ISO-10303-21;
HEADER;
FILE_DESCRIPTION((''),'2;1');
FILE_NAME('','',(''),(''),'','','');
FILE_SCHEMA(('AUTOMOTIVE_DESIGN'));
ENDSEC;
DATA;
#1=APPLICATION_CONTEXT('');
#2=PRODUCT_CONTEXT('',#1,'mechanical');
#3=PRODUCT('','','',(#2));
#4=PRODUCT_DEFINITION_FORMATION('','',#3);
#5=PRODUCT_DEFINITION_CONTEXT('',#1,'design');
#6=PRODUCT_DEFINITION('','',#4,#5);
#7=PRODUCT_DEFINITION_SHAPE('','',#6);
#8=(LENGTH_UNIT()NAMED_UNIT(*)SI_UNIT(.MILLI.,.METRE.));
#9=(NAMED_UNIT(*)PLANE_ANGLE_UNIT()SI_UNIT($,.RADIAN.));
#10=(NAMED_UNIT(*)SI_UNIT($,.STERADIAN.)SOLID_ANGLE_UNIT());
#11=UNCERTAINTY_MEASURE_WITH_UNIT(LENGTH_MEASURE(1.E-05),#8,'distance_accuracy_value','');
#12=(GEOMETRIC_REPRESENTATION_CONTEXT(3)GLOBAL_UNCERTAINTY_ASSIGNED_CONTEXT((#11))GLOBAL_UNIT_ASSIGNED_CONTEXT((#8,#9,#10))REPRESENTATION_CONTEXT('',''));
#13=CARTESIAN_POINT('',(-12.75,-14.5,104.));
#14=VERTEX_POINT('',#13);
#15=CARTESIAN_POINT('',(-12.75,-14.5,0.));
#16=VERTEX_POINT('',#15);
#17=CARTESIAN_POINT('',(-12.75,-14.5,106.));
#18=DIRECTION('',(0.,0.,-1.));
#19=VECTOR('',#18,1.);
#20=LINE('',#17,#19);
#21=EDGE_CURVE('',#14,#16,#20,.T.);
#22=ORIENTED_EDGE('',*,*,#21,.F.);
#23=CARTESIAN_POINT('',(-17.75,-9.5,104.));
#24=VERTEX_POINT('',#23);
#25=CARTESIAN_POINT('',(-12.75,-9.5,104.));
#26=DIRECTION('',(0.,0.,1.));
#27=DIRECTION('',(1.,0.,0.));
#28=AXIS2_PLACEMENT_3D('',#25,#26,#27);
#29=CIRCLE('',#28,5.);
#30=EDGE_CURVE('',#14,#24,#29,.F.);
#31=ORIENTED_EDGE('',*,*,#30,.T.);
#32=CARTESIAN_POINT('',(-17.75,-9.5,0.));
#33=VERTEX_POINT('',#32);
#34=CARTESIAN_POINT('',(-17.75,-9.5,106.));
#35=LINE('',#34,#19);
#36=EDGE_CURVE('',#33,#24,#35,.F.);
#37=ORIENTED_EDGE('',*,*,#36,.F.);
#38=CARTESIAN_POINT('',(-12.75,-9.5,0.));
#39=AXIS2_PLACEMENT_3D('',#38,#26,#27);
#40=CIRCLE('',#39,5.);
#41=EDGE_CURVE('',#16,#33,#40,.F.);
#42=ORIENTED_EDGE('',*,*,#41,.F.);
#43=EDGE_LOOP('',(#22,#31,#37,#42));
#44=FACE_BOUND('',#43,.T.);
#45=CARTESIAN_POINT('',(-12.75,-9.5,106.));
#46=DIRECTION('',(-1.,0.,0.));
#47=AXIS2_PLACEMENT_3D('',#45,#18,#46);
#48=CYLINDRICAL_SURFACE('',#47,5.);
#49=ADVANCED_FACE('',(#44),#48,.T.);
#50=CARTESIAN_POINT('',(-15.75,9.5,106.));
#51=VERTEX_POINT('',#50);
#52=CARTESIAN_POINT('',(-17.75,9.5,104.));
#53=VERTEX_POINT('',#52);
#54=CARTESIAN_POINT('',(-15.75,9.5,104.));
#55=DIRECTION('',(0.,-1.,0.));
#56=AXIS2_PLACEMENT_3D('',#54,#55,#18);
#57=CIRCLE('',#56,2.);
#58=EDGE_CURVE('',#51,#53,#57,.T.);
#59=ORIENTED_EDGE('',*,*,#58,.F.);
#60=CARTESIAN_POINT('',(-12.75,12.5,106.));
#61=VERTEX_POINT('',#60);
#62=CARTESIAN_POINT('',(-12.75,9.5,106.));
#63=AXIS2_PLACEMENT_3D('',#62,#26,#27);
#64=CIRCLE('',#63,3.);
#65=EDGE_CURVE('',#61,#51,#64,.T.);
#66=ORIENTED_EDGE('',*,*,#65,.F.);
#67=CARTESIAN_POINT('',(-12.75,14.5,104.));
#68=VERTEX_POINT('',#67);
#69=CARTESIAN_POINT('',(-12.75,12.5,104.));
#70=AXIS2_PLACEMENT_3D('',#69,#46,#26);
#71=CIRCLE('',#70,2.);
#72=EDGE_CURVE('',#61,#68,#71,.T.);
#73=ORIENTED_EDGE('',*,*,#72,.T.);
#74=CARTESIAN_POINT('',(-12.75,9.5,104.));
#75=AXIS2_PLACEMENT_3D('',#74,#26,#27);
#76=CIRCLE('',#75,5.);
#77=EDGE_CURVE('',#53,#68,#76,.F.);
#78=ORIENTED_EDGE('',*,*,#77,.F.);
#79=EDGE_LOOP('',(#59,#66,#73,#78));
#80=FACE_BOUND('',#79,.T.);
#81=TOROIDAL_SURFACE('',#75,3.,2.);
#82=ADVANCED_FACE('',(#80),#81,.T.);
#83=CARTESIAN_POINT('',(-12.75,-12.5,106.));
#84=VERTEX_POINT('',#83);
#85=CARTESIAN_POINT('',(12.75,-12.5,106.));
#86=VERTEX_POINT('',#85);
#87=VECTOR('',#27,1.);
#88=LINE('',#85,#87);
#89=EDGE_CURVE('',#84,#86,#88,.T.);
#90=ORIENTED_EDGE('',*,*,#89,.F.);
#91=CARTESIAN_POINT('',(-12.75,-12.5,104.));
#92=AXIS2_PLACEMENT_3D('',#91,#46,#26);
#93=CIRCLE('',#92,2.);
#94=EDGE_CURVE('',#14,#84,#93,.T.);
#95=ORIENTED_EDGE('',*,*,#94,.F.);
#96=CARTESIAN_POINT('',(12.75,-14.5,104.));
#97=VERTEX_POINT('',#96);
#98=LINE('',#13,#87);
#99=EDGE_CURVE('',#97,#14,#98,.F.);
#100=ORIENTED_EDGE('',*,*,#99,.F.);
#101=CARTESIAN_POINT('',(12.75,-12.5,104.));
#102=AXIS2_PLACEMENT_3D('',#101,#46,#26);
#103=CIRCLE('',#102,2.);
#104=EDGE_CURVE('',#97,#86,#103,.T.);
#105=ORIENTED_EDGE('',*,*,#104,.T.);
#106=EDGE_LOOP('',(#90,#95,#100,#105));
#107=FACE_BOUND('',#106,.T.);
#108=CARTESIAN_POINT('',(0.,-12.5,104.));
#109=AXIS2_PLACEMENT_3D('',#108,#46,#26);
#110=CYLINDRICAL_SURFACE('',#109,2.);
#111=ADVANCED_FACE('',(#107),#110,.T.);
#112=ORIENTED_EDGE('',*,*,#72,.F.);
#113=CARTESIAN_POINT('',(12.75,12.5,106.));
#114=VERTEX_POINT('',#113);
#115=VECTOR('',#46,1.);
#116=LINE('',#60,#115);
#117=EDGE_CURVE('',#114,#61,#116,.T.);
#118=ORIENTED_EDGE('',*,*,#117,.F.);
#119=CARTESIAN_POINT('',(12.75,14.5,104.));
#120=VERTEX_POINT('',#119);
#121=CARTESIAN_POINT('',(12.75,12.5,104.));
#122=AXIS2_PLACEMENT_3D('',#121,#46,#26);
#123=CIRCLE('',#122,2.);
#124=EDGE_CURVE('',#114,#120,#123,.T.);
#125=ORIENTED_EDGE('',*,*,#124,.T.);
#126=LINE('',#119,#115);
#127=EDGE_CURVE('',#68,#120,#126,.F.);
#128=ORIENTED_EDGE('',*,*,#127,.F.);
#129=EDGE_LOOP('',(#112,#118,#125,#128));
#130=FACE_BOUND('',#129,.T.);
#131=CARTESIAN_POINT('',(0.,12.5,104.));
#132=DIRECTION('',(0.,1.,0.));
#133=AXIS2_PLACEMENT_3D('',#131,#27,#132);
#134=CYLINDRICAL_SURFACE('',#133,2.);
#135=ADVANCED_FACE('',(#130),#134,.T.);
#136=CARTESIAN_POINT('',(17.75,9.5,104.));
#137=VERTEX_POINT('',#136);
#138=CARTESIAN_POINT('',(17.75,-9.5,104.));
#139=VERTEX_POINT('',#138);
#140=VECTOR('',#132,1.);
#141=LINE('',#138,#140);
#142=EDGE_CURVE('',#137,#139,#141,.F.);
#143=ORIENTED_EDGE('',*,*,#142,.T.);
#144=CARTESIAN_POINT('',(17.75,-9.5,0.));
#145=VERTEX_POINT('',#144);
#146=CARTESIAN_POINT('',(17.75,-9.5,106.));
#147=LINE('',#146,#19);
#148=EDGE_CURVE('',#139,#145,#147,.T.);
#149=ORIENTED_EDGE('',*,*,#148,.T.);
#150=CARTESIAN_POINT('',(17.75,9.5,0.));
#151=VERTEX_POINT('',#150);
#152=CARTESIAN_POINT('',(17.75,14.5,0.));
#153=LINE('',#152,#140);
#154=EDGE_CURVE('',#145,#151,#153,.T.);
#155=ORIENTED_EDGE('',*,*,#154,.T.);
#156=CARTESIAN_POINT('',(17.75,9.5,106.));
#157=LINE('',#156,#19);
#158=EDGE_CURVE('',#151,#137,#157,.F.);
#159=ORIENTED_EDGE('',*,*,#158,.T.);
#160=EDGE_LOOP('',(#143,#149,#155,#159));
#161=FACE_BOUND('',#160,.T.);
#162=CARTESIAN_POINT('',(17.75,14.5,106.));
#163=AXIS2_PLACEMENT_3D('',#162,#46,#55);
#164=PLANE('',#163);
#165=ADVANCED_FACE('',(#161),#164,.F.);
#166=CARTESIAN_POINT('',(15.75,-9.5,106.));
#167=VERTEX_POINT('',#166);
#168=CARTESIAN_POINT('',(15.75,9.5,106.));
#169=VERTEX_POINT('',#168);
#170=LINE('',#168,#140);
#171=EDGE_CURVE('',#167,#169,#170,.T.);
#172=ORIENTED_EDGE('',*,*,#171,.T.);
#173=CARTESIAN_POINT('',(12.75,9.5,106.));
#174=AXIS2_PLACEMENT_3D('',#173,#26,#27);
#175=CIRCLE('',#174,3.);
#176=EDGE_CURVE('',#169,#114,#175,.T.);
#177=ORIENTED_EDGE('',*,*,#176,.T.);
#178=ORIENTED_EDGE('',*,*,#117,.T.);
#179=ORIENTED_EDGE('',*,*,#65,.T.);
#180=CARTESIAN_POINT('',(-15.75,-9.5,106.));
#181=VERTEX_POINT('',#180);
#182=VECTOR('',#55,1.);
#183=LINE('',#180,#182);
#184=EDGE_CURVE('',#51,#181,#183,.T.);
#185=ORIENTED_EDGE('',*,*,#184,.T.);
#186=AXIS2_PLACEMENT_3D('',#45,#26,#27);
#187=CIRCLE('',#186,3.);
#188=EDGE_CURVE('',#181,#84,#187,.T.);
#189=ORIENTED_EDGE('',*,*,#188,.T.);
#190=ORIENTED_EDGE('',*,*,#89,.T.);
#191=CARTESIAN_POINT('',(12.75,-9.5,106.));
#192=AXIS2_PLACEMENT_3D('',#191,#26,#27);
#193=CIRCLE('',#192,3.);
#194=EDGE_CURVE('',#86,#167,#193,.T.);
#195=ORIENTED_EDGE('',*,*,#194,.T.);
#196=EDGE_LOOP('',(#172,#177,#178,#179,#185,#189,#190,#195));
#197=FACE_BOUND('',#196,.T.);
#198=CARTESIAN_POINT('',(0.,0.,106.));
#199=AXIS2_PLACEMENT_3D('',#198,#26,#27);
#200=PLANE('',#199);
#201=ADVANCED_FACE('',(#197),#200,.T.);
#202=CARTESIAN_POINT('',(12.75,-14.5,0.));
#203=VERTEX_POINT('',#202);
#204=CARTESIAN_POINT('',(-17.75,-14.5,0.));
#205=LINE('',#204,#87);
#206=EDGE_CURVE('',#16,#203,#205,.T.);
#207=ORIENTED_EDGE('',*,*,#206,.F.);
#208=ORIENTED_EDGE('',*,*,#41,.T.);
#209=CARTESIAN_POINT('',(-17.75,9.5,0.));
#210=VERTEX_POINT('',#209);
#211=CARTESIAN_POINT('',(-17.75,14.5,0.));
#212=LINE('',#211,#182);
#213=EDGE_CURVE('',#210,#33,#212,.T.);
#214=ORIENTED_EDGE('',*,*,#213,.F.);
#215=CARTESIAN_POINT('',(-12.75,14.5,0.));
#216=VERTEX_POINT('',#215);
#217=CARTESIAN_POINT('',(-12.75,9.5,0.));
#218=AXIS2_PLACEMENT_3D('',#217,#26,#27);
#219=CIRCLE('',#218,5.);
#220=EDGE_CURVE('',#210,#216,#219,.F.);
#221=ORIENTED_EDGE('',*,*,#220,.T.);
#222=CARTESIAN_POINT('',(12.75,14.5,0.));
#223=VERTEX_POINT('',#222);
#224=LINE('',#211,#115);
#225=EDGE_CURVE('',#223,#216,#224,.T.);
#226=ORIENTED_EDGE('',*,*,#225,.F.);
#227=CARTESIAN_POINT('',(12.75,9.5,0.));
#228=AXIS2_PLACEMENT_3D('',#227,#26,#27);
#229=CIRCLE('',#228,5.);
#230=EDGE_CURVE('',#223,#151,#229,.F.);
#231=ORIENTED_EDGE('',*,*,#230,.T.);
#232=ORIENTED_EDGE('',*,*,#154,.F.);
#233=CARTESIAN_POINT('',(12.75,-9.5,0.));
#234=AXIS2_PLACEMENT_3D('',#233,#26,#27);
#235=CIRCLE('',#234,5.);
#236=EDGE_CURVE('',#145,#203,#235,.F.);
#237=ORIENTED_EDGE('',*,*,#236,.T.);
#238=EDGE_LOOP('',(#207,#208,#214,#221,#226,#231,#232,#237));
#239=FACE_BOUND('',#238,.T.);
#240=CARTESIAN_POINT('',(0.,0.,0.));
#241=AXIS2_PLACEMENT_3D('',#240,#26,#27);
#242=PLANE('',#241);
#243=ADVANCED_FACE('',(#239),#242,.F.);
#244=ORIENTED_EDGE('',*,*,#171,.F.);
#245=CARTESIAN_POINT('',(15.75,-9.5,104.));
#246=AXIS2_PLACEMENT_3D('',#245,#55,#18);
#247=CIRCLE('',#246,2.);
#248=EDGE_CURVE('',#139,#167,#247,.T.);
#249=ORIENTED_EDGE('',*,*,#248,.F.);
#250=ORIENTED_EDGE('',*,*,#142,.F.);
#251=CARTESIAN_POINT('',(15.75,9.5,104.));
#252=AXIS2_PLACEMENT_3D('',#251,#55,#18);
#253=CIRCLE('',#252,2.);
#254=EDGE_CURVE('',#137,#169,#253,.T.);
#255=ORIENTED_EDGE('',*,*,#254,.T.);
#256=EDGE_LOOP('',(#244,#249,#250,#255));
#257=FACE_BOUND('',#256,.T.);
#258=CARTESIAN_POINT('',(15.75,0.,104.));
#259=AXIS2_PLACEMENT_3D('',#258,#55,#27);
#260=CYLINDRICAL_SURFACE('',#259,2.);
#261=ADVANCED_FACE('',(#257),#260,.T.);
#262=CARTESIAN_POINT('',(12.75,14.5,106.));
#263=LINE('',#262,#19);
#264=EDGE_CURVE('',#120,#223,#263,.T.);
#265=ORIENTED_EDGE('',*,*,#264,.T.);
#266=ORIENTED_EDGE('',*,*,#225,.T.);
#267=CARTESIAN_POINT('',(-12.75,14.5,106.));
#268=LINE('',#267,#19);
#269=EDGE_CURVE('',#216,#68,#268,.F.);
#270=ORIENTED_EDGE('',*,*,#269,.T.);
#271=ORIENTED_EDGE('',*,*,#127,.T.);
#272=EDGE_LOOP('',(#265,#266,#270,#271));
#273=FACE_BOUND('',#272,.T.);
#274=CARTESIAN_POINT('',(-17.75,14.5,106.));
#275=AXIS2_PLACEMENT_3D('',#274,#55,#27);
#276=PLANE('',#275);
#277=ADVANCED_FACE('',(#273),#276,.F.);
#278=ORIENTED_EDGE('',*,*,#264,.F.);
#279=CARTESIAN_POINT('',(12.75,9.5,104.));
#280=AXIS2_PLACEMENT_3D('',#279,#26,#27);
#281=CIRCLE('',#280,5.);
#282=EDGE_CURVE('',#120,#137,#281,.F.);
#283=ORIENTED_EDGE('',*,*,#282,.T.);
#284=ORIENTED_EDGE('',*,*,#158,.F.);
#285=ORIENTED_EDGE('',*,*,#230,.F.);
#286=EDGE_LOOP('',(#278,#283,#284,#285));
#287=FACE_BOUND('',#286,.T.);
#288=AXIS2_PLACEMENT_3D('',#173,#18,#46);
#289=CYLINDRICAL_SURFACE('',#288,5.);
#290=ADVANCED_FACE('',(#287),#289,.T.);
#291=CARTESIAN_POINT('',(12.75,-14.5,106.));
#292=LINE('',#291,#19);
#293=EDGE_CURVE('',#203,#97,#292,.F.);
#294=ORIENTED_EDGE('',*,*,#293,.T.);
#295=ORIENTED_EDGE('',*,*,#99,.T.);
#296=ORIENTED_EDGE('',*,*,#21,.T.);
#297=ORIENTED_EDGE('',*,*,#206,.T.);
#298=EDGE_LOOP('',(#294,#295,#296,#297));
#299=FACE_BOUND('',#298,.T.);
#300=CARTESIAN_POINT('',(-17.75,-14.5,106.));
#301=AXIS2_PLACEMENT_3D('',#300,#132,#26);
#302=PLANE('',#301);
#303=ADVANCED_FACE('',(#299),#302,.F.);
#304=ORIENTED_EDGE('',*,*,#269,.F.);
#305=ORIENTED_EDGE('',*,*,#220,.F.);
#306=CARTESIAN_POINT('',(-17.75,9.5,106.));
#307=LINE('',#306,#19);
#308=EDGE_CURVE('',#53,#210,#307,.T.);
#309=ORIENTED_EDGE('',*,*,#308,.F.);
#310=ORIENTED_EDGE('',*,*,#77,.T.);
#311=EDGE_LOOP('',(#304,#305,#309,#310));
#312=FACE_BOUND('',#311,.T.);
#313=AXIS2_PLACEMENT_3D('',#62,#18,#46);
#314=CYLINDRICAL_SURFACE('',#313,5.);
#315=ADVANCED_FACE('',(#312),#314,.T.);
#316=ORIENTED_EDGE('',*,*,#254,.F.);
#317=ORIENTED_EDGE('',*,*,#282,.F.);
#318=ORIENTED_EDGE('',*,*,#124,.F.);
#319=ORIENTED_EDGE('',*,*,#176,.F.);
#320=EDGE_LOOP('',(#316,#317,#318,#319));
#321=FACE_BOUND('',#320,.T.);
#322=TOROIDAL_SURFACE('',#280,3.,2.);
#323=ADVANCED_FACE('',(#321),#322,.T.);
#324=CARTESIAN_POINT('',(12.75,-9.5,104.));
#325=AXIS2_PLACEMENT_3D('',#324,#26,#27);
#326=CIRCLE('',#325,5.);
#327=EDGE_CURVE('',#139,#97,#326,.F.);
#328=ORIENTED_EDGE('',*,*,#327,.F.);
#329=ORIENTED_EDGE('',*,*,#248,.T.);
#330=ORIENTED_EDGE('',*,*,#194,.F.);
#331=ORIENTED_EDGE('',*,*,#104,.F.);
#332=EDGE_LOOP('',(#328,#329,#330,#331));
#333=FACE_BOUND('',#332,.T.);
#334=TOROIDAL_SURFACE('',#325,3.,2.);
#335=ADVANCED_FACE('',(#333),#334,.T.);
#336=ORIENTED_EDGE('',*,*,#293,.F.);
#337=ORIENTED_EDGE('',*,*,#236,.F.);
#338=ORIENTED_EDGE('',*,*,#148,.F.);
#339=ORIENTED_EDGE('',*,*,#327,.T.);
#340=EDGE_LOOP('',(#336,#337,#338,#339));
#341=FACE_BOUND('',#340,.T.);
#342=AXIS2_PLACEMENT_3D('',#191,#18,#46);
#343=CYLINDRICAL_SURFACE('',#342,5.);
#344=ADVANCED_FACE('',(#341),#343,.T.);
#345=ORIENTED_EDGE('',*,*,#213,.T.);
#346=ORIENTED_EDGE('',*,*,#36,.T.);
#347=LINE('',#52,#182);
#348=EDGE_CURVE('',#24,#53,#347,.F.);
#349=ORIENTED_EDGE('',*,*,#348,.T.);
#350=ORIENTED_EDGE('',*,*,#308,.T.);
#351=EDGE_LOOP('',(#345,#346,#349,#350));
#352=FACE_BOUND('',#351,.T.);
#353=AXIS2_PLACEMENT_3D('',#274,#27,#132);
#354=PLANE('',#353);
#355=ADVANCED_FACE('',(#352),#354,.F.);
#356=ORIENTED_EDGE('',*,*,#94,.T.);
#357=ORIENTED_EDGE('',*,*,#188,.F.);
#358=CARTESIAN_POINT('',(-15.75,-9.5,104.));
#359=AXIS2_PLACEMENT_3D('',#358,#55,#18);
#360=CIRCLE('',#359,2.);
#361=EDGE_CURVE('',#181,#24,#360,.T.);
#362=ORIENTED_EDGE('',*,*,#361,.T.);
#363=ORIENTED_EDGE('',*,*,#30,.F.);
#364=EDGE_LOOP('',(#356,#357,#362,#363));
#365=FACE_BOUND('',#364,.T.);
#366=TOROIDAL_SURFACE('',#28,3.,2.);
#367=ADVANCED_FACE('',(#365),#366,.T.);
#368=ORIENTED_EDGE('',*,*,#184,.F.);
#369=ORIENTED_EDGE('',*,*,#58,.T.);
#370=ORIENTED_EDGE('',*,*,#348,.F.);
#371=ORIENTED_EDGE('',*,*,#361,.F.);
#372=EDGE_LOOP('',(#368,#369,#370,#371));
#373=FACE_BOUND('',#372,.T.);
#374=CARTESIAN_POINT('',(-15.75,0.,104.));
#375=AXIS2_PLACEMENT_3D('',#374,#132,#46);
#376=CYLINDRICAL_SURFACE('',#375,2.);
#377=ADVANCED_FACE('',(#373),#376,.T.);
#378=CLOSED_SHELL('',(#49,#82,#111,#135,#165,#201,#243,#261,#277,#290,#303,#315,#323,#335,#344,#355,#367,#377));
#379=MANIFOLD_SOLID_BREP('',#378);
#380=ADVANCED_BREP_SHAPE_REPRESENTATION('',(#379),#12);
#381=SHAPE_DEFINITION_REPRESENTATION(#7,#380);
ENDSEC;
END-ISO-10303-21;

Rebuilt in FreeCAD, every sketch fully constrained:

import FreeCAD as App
import Part
import Sketcher


def edges_at(feature, points):
    """Names of the edges that pass closest to the given points."""
    edges = feature.Shape.Edges
    near = lambda p: min(range(len(edges)), key=lambda i: edges[i].distToShape(Part.Vertex(*p))[0])
    return sorted({f"Edge{near(p) + 1}" for p in points})


def add_polygon(sketch, points):
    """Adds a closed chain of lines whose ends are joined by coincident constraints."""
    first, n = sketch.GeometryCount, len(points)
    for a, b in zip(points, points[1:] + points[:1]):
        sketch.addGeometry(Part.LineSegment(App.Vector(*a, 0), App.Vector(*b, 0)), False)
    for i in range(n):
        sketch.addConstraint(Sketcher.Constraint("Coincident", first + i, 2, first + (i + 1) % n, 1))

doc = App.newDocument("Part")
body = doc.addObject("PartDesign::Body", "Body")

sketch1 = body.newObject("Sketcher::SketchObject", "Sketch")
sketch1.AttachmentSupport = (doc.getObject("XY_Plane"), [""])
sketch1.MapMode = "FlatFace"
add_polygon(sketch1, [(-18, 14), (-18, -14), (18, -14), (18, 14)])
sketch1.addConstraint([
    Sketcher.Constraint("Vertical", 0),
    Sketcher.Constraint("Horizontal", 1),
    Sketcher.Constraint("Vertical", 2),
    Sketcher.Constraint("Horizontal", 3),
    Sketcher.Constraint("Symmetric", 0, 2, 2, 2, -1, 1),
    Sketcher.Constraint("DistanceY", 0, 2, 0, 1, 29.0),
    Sketcher.Constraint("DistanceX", 1, 1, 1, 2, 35.5),
])
pad1 = body.newObject("PartDesign::Pad", "Pad")
pad1.Profile = sketch1
pad1.Length = 106
doc.recompute()

fillet = body.newObject("PartDesign::Fillet", "Fillet")
fillet.Base = (pad1, edges_at(pad1, [
    (17.75, -14.5, 53),
    (-17.75, -14.5, 53),
    (-17.75, 14.5, 53),
    (17.75, 14.5, 53),
]))
fillet.Radius = 5
doc.recompute()

fillet2 = body.newObject("PartDesign::Fillet", "Fillet001")
fillet2.Base = (fillet, edges_at(fillet, [
    (17.75, 0, 106),
    (0, -14.5, 106),
    (0, 14.5, 106),
    (-17.75, 0, 106),
    (16.286, 13.036, 106),
    (-16.286, 13.036, 106),
    (-16.286, -13.036, 106),
    (16.286, -13.036, 106),
]))
fillet2.Radius = 2

doc.recompute()
